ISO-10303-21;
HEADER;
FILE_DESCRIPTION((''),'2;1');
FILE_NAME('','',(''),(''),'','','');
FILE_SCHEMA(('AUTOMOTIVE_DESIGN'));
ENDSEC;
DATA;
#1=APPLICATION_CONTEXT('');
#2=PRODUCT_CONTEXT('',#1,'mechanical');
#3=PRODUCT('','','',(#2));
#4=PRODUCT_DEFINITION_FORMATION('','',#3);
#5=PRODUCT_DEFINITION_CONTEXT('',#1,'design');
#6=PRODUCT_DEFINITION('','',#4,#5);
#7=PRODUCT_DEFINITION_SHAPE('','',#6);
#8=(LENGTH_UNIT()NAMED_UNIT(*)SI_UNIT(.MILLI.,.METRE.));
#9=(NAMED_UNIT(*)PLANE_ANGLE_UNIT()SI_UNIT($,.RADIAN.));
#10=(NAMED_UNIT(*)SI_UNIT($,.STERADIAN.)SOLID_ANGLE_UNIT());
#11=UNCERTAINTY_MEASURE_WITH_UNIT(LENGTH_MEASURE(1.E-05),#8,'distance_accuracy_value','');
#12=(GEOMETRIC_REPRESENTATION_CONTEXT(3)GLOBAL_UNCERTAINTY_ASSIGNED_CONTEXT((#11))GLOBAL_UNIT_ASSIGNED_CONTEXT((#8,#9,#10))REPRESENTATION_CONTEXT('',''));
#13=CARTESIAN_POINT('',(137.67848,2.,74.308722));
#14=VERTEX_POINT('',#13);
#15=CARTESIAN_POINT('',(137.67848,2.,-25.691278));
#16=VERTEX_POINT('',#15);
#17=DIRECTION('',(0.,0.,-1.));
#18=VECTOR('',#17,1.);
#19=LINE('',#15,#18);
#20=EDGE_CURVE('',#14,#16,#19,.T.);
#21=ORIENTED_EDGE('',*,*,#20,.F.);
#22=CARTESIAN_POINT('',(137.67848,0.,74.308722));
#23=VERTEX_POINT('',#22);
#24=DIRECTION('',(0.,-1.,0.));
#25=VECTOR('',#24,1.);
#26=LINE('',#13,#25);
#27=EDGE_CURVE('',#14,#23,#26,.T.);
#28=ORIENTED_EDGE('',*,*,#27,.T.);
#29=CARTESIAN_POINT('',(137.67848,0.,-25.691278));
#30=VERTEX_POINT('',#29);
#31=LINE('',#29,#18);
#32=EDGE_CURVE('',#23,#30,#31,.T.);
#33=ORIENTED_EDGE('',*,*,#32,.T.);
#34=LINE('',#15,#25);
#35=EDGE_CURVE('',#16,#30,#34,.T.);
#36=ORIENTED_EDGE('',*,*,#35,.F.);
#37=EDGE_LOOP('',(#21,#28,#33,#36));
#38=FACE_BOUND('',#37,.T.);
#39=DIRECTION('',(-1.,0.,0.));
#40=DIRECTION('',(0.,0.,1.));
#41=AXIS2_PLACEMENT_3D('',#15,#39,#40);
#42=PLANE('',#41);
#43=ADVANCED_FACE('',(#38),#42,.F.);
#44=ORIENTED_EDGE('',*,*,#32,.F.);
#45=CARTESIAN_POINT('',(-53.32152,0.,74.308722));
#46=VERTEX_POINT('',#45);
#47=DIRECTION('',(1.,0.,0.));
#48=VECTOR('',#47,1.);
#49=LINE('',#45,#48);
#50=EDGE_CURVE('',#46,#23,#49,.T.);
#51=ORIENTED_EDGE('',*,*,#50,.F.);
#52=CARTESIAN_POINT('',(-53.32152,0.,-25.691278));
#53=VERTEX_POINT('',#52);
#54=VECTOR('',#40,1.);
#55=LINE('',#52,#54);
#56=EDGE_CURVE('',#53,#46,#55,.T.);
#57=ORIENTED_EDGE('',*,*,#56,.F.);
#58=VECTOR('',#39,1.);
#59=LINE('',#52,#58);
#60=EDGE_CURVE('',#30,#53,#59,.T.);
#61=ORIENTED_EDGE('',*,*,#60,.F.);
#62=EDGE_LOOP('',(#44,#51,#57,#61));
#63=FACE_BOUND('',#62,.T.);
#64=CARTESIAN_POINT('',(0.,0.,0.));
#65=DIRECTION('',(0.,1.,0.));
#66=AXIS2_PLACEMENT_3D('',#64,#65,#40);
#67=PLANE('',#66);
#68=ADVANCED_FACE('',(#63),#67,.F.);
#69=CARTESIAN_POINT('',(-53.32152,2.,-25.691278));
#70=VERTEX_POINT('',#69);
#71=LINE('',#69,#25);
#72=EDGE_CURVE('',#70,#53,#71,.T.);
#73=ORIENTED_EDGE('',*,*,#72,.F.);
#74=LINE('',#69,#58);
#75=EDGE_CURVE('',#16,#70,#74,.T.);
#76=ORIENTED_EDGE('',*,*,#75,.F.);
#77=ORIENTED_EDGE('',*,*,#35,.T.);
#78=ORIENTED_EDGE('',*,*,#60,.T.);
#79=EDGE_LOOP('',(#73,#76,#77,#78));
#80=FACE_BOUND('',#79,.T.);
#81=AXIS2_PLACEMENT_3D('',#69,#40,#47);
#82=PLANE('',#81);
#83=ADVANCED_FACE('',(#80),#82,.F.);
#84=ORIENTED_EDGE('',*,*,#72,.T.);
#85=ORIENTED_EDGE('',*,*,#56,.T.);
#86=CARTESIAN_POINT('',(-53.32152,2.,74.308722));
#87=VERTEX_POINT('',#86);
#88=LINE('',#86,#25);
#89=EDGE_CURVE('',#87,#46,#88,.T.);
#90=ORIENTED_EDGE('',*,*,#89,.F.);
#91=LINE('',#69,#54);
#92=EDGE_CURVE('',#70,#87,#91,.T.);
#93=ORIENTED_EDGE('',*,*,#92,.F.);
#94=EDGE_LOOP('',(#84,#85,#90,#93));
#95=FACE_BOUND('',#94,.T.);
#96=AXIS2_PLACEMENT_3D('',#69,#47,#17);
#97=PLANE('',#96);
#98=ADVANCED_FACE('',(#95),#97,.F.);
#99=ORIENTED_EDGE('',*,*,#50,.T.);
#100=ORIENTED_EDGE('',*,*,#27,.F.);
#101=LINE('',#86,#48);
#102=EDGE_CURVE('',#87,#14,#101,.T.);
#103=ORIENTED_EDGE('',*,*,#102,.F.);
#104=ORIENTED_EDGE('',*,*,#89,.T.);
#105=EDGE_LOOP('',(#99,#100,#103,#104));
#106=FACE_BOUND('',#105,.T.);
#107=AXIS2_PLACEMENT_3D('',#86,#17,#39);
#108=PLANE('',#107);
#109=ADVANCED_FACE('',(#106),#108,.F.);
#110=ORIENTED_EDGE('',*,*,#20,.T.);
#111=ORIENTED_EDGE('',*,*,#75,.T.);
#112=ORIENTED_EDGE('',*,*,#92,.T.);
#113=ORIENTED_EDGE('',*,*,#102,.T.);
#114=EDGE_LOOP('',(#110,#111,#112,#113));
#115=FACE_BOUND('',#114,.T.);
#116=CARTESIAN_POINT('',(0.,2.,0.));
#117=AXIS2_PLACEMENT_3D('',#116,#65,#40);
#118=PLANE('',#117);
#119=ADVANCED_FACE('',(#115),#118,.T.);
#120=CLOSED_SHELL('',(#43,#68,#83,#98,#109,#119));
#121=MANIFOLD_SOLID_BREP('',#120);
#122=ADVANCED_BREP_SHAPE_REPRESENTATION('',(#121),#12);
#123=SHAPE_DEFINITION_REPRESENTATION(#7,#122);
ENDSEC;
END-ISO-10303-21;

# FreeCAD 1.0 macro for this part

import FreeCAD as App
import Part
import Sketcher
Q = App.Units.Quantity


def add_polygon(sketch, points):
    """Adds a closed chain of lines whose ends are joined by coincident constraints."""
    first, n = sketch.GeometryCount, len(points)
    for a, b in zip(points, points[1:] + points[:1]):
        sketch.addGeometry(Part.LineSegment(App.Vector(*a, 0), App.Vector(*b, 0)), False)
    for i in range(n):
        sketch.addConstraint(Sketcher.Constraint("Coincident", first + i, 2, first + (i + 1) % n, 1))

doc = App.newDocument("Part")
params = doc.addObject("Spreadsheet::Sheet", "Params")
for row, (alias, value) in enumerate([
    ("sketch1_width", "191 mm"),
    ("sketch1_height", "100 mm"),
    ("pad1_length", "2 mm"),
], start=1):
    params.set(f"A{row}", alias)
    params.set(f"B{row}", "=" + value)
    params.setAlias(f"B{row}", alias)

body = doc.addObject("PartDesign::Body", "Body")

sketch1 = doc.addObject("Sketcher::SketchObject", "Sketch")
body.addObject(sketch1)
sketch1.AttachmentSupport = (doc.XZ_Plane, [""])
sketch1.MapMode = "FlatFace"
add_polygon(sketch1, [(-53, -26), (-53, 74), (138, 74), (138, -26)])
sketch1.addConstraint([
    Sketcher.Constraint("Vertical", 0),
    Sketcher.Constraint("Horizontal", 1),
    Sketcher.Constraint("Vertical", 2),
    Sketcher.Constraint("Horizontal", 3),
    Sketcher.Constraint("DistanceX", 1, 1, 1, 2, Q("191 mm")),
    Sketcher.Constraint("DistanceY", 0, 1, 0, 2, Q("100 mm")),
    Sketcher.Constraint("DistanceX", 0, 2, -1, 1, Q("53.32152 mm")),
    Sketcher.Constraint("DistanceY", -1, 1, 0, 2, Q("74.308722 mm")),
])
sketch1.setExpression("Constraints[8]", "Params.sketch1_width")
sketch1.setExpression("Constraints[9]", "Params.sketch1_height")
pad1 = doc.addObject("PartDesign::Pad", "Pad")
body.addObject(pad1)
pad1.Profile = sketch1
pad1.setExpression("Length", "Params.pad1_length")
pad1.Reversed = True

doc.recompute()
